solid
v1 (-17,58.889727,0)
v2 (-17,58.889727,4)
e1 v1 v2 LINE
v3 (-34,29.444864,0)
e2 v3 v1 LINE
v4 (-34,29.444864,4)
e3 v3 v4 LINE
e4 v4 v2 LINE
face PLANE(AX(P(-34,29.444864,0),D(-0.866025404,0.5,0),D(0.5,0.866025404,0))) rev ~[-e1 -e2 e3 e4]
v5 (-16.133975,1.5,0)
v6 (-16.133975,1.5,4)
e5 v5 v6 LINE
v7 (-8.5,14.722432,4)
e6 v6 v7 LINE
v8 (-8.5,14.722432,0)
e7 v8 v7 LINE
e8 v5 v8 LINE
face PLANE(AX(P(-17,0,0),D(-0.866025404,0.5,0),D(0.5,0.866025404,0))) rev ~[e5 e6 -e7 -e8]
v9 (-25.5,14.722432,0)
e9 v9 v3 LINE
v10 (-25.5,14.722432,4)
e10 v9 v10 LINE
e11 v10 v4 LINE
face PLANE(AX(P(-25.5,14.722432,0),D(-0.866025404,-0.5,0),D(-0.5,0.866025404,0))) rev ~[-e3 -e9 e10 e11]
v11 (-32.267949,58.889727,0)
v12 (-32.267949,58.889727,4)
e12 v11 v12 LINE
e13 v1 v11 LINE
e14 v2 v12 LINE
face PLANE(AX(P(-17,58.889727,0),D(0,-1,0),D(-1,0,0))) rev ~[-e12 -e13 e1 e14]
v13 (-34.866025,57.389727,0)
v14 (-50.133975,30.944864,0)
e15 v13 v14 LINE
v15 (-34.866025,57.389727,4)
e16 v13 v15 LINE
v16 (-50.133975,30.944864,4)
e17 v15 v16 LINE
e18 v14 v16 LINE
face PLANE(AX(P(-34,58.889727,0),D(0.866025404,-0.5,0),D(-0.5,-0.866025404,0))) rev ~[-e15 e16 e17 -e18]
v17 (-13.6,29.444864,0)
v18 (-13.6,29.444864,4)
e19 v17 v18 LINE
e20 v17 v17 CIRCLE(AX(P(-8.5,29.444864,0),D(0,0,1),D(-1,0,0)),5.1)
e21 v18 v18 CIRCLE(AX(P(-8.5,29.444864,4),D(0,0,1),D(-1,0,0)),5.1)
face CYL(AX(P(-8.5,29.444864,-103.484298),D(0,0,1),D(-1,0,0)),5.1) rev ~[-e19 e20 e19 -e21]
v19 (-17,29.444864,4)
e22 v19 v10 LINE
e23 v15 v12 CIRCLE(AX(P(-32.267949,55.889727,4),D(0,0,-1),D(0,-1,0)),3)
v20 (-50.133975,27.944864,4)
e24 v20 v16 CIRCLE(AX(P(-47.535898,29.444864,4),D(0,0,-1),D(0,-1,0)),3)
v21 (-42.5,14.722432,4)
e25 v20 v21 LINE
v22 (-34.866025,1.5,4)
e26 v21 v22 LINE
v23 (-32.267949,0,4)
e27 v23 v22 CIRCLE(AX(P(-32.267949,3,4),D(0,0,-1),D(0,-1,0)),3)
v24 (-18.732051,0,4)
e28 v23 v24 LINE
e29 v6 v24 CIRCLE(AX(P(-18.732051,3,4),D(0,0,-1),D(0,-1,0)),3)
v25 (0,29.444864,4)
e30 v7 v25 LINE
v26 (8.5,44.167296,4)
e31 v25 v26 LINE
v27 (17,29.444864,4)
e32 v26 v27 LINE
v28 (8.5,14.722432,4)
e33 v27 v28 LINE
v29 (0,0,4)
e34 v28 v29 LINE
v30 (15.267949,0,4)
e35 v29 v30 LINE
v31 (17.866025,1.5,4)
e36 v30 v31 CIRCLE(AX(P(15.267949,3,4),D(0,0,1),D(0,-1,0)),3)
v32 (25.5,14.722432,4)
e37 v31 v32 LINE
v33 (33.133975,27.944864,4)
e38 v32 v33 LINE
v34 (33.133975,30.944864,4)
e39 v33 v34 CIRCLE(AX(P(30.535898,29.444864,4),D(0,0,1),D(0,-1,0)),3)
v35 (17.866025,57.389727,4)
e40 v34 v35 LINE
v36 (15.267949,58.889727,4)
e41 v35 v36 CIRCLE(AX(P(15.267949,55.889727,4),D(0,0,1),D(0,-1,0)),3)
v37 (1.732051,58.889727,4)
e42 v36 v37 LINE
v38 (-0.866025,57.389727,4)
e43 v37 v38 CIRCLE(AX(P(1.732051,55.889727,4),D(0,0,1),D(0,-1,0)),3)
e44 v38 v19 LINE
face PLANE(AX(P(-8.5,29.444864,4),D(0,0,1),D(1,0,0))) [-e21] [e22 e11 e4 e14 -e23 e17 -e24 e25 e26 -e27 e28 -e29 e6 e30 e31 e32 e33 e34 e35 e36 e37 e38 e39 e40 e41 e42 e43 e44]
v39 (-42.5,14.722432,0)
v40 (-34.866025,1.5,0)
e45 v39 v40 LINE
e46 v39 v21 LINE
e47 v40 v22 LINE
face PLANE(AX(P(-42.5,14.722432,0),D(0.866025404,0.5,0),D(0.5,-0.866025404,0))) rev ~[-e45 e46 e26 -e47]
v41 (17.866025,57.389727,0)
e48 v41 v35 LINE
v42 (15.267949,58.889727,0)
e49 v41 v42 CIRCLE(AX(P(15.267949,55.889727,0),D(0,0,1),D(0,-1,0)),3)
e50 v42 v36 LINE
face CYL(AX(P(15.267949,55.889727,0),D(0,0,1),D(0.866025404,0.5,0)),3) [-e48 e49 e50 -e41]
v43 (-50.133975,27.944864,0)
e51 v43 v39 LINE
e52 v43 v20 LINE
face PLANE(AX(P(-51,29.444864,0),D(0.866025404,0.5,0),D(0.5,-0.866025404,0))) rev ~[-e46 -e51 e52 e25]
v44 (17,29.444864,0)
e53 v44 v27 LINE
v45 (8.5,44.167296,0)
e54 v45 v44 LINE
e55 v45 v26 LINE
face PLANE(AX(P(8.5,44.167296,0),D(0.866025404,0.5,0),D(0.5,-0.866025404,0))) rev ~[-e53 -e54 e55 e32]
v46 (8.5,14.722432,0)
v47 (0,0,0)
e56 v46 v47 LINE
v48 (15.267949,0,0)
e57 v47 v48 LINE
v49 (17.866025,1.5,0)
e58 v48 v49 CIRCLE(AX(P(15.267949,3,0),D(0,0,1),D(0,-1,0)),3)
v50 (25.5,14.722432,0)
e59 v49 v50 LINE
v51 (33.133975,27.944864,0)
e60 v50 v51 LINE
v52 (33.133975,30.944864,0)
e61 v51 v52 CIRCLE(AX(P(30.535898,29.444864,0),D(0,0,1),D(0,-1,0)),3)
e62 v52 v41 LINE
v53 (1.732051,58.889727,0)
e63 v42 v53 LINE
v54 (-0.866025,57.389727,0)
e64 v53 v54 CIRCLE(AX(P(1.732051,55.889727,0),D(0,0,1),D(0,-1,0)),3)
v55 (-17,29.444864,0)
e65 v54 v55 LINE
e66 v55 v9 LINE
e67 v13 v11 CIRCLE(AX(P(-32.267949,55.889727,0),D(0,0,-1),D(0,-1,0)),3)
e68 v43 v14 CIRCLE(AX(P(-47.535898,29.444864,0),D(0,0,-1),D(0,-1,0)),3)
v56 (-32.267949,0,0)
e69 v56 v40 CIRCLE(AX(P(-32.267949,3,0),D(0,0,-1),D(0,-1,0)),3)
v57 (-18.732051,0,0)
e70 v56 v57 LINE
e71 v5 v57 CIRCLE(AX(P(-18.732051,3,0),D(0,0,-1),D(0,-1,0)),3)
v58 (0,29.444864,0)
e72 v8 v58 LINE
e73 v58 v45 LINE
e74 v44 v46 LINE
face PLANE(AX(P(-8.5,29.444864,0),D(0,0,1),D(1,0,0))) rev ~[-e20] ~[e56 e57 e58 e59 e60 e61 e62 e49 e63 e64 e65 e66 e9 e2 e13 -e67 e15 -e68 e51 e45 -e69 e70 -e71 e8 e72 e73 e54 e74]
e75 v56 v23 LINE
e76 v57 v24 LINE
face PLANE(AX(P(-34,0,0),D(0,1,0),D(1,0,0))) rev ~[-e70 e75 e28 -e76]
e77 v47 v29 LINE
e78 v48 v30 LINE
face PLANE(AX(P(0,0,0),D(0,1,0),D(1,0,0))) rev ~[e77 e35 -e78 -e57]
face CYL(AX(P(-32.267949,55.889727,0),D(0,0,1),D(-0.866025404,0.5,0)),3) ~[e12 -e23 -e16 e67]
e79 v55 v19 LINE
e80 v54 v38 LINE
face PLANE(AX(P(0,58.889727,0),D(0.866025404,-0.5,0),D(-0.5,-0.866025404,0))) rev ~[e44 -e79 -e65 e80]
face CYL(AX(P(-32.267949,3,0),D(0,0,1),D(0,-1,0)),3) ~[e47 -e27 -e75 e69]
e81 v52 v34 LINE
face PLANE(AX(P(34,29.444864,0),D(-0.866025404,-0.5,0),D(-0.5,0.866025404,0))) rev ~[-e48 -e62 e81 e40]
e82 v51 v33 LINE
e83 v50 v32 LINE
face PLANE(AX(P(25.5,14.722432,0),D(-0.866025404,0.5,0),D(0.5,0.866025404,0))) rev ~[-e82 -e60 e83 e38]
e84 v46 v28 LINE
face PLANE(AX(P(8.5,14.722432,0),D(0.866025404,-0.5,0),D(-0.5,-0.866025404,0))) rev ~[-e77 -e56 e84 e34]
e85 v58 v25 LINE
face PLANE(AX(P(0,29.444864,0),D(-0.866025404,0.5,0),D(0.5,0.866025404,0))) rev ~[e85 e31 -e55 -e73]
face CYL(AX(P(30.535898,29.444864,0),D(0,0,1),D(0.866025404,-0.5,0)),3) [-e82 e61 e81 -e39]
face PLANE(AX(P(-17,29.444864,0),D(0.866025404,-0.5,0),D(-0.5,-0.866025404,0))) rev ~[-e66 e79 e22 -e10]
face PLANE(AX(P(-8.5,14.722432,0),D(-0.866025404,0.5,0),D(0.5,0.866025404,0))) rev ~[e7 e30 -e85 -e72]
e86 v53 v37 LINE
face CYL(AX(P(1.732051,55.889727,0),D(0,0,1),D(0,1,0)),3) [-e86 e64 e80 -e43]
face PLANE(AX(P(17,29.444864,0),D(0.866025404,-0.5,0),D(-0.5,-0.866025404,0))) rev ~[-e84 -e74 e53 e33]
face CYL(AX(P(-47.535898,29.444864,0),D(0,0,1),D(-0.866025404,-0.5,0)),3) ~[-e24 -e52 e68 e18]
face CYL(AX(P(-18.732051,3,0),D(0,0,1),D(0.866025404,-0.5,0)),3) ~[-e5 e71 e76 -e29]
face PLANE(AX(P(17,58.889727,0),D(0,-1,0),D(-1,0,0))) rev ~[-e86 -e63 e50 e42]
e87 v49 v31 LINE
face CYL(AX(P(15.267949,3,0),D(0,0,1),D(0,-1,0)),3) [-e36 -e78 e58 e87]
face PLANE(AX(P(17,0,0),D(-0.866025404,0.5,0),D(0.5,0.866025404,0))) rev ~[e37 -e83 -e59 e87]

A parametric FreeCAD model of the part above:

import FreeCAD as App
import Part
import Sketcher

V = App.Vector
Q = App.Units.Quantity


def edges_at(feature, points):
    """Names of the edges that pass closest to the given points."""
    edges = feature.Shape.Edges
    near = lambda p: min(range(len(edges)), key=lambda i: edges[i].distToShape(Part.Vertex(*p))[0])
    return sorted({f"Edge{near(p) + 1}" for p in points})


def add_polygon(sketch, points):
    """Adds a closed chain of lines whose ends are joined by coincident constraints."""
    first, n = sketch.GeometryCount, len(points)
    for a, b in zip(points, points[1:] + points[:1]):
        sketch.addGeometry(Part.LineSegment(App.Vector(*a, 0), App.Vector(*b, 0)), False)
    for i in range(n):
        sketch.addConstraint(Sketcher.Constraint("Coincident", first + i, 2, first + (i + 1) % n, 1))

doc = App.newDocument("Part")
params = doc.addObject("Spreadsheet::Sheet", "Params")
for row, (alias, value) in enumerate([
    ("sketch1_width", "17 mm"),
    ("pad1_length", "4 mm"),
    ("sketch2_diameter", "10.2 mm"),
    ("hole_diameter", "10.2 mm"),
    ("fillet_radius", "3 mm"),
], start=1):
    params.set(f"A{row}", alias)
    params.set(f"B{row}", "=" + value)
    params.setAlias(f"B{row}", alias)

body = doc.addObject("PartDesign::Body", "Body")

sketch1 = doc.addObject("Sketcher::SketchObject", "Sketch")
body.addObject(sketch1)
sketch1.AttachmentSupport = (doc.XY_Plane, [""])
sketch1.MapMode = "FlatFace"
add_polygon(sketch1, [(8.5, 14.722432), (0, 0), (17, 0), (25.5, 14.722432), (34, 29.444864), (17, 58.889727), (0, 58.889727), (-17, 29.444864), (-25.5, 14.722432), (-34, 29.444864), (-17, 58.889727), (-34, 58.889727), (-51, 29.444864), (-42.5, 14.722432), (-34, 0), (-17, 0), (-8.5, 14.722432), (0, 29.444864), (8.5, 44.167296), (17, 29.444864)])
sketch1.addConstraint(Sketcher.Constraint("Horizontal", 1))
sketch1.addConstraint(Sketcher.Constraint("Horizontal", 5))
sketch1.addConstraint(Sketcher.Constraint("Horizontal", 10))
sketch1.addConstraint(Sketcher.Constraint("Horizontal", 14))
sketch1.addConstraint(Sketcher.Constraint("Coincident", 0, 2, -1, 1))
sketch1.addConstraint(Sketcher.Constraint("Symmetric", 1, 2, 14, 2, -1, 1))
sketch1.addConstraint(Sketcher.Constraint("Symmetric", 2, 2, 7, 2, -2))
sketch1.addConstraint(Sketcher.Constraint("Symmetric", 3, 2, 8, 2, -2))
sketch1.addConstraint(Sketcher.Constraint("Symmetric", 4, 2, 9, 2, -2))
sketch1.addConstraint(Sketcher.Constraint("Symmetric", 6, 2, 18, 2, -2))
sketch1.addConstraint(Sketcher.Constraint("Symmetric", 15, 2, 19, 2, -2))
sketch1.addConstraint(Sketcher.Constraint("PointOnObject", 5, 2, -2))
sketch1.addConstraint(Sketcher.Constraint("PointOnObject", 16, 2, -2))
sketch1.addConstraint(Sketcher.Constraint("Parallel", 0, 2))
sketch1.addConstraint(Sketcher.Constraint("Parallel", 2, 3))
sketch1.addConstraint(Sketcher.Constraint("Parallel", 3, 6))
sketch1.addConstraint(Sketcher.Constraint("Parallel", 6, 7))
sketch1.addConstraint(Sketcher.Constraint("Parallel", 4, 8))
sketch1.addConstraint(Sketcher.Constraint("Parallel", 9, 11))
sketch1.addConstraint(Sketcher.Constraint("Parallel", 8, 12))
sketch1.addConstraint(Sketcher.Constraint("Parallel", 12, 13))
sketch1.addConstraint(Sketcher.Constraint("Parallel", 11, 15))
sketch1.addConstraint(Sketcher.Constraint("Parallel", 15, 16))
sketch1.addConstraint(Sketcher.Constraint("Parallel", 16, 17))
sketch1.addConstraint(Sketcher.Constraint("Parallel", 13, 18))
sketch1.addConstraint(Sketcher.Constraint("Parallel", 17, 19))
sketch1.addConstraint(Sketcher.Constraint("Horizontal", 3, 2, 6, 2))
sketch1.addConstraint(Sketcher.Constraint("Horizontal", 8, 2, 11, 2))
sketch1.addConstraint(Sketcher.Constraint("Horizontal", 7, 2, 12, 2))
sketch1.addConstraint(Sketcher.Constraint("Horizontal", 12, 2, 15, 2))
sketch1.addConstraint(Sketcher.Constraint("Vertical", 8, 2, 10, 2))
sketch1.addConstraint(Sketcher.Constraint("DistanceX", 1, 1, 1, 2, 17.0))
sketch1.addConstraint(Sketcher.Constraint("Angle", 0, Q("-120 deg")))
sketch1.setExpression("Constraints[51]", "Params.sketch1_width")
pad1 = doc.addObject("PartDesign::Pad", "Pad")
body.addObject(pad1)
pad1.Profile = sketch1
pad1.setExpression("Length", "Params.pad1_length")

sketch2 = doc.addObject("Sketcher::SketchObject", "Sketch001")
body.addObject(sketch2)
sketch2.AttachmentSupport = (doc.XY_Plane, [""])
sketch2.MapMode = "FlatFace"
sketch2.addGeometry(Part.Circle(V(-8.5, 29.444864, 0), V(0, 0, 1), 5.1), False)
sketch2.addConstraint(Sketcher.Constraint("Diameter", 0, 10.2))
sketch2.addConstraint(Sketcher.Constraint("DistanceX", 0, 3, -1, 1, 8.5))
sketch2.addConstraint(Sketcher.Constraint("DistanceY", -1, 1, 0, 3, 29.444864))
sketch2.setExpression("Constraints[0]", "Params.sketch2_diameter")
doc.recompute()
hole = doc.addObject("PartDesign::Hole", "Hole")
body.addObject(hole)
hole.Profile = sketch2
hole.ThreadType = "None"
hole.setExpression("Diameter", "Params.hole_diameter")
hole.DepthType = "ThroughAll"
hole.Reversed = True
doc.recompute()

fillet = doc.addObject("PartDesign::Fillet", "Fillet")
body.addObject(fillet)
fillet.Base = (hole, edges_at(hole, [
    (-51, 29.445, 2),
    (-34, 58.89, 2),
    (0, 58.89, 2),
    (17, 58.89, 2),
    (34, 29.445, 2),
    (17, 0, 2),
    (-17, 0, 2),
    (-34, 0, 2),
]))
fillet.setExpression("Radius", "Params.fillet_radius")

doc.recompute()
